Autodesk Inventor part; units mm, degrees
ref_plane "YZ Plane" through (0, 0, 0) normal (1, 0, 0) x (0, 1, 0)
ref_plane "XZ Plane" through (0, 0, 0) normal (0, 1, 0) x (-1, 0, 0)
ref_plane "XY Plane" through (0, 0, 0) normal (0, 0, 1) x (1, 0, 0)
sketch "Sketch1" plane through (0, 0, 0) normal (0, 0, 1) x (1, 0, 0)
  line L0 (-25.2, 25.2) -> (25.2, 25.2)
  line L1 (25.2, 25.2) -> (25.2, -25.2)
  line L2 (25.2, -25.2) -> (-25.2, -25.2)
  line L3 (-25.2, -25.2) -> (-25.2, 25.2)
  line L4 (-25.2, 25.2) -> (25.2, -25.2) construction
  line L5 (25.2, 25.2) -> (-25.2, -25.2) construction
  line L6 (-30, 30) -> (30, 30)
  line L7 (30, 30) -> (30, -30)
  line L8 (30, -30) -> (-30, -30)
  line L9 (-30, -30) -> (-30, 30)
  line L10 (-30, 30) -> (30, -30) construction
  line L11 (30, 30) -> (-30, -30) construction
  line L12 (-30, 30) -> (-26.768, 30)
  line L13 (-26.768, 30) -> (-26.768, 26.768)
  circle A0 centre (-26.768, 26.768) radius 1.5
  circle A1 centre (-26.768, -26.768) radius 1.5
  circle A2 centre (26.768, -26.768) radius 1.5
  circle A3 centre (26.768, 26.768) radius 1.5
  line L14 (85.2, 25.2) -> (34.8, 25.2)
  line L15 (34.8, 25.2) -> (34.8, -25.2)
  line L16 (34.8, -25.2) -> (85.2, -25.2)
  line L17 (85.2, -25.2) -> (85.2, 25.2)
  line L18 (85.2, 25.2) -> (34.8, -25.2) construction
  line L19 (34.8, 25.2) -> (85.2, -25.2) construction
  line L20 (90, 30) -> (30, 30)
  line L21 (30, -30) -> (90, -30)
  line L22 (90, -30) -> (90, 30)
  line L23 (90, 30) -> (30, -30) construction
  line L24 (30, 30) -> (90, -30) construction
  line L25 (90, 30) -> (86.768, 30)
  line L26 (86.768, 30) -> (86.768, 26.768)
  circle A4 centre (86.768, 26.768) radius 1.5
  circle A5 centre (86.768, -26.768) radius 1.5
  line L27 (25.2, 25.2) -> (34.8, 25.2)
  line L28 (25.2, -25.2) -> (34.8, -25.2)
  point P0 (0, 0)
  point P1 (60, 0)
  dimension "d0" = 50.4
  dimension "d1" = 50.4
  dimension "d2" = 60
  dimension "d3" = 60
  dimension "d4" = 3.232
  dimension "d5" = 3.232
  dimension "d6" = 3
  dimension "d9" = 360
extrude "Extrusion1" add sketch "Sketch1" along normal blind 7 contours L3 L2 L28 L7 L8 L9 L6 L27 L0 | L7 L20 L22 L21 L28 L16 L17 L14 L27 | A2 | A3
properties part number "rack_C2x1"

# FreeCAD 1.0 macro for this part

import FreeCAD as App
import Part
import Sketcher
from FreeCAD import Vector

doc = App.newDocument("Part")
body = doc.addObject("PartDesign::Body", "Body")

# Sketch on XY plane
sketch1 = doc.addObject("Sketcher::SketchObject", "Sketch")
body.addObject(sketch1)
sketch1.AttachmentSupport = (doc.XY_Plane, [""])
sketch1.MapMode = "FlatFace"
sketch1.addGeometry(Part.LineSegment(Vector(-30, -30, 0), Vector(90, -30, 0)), False)
sketch1.addGeometry(Part.LineSegment(Vector(90, -30, 0), Vector(90, 30, 0)), False)
sketch1.addGeometry(Part.LineSegment(Vector(90, 30, 0), Vector(86.8, 30, 0)), False)
sketch1.addGeometry(Part.LineSegment(Vector(86.8, 30, 0), Vector(-26.8, 30, 0)), False)
sketch1.addGeometry(Part.LineSegment(Vector(-26.8, 30, 0), Vector(-30, 30, 0)), False)
sketch1.addGeometry(Part.LineSegment(Vector(-30, 30, 0), Vector(-30, -30, 0)), False)
sketch1.addGeometry(Part.LineSegment(Vector(-25.2, -25.2, 0), Vector(-25.2, 25.2, 0)), False)
sketch1.addGeometry(Part.LineSegment(Vector(-25.2, 25.2, 0), Vector(85.2, 25.2, 0)), False)
sketch1.addGeometry(Part.LineSegment(Vector(85.2, 25.2, 0), Vector(85.2, -25.2, 0)), False)
sketch1.addGeometry(Part.LineSegment(Vector(85.2, -25.2, 0), Vector(-25.2, -25.2, 0)), False)
sketch1.addGeometry(Part.Circle(Vector(-26.8, -26.8, 0), Vector(0, 0, 1), 1.5), False)
sketch1.addGeometry(Part.Circle(Vector(-26.8, 26.8, 0), Vector(0, 0, 1), 1.5), False)
sketch1.addGeometry(Part.Circle(Vector(86.8, 26.8, 0), Vector(0, 0, 1), 1.5), False)
sketch1.addGeometry(Part.Circle(Vector(86.8, -26.8, 0), Vector(0, 0, 1), 1.5), False)
sketch1.addConstraint(Sketcher.Constraint("Coincident", 0, 2, 1, 1))
sketch1.addConstraint(Sketcher.Constraint("Coincident", 1, 2, 2, 1))
sketch1.addConstraint(Sketcher.Constraint("Coincident", 2, 2, 3, 1))
sketch1.addConstraint(Sketcher.Constraint("Coincident", 3, 2, 4, 1))
sketch1.addConstraint(Sketcher.Constraint("Coincident", 4, 2, 5, 1))
sketch1.addConstraint(Sketcher.Constraint("Coincident", 5, 2, 0, 1))
sketch1.addConstraint(Sketcher.Constraint("Coincident", 6, 2, 7, 1))
sketch1.addConstraint(Sketcher.Constraint("Coincident", 7, 2, 8, 1))
sketch1.addConstraint(Sketcher.Constraint("Coincident", 8, 2, 9, 1))
sketch1.addConstraint(Sketcher.Constraint("Coincident", 9, 2, 6, 1))
sketch1.addConstraint(Sketcher.Constraint("Horizontal", 0))
sketch1.addConstraint(Sketcher.Constraint("Vertical", 1))
sketch1.addConstraint(Sketcher.Constraint("Horizontal", 2))
sketch1.addConstraint(Sketcher.Constraint("Horizontal", 3))
sketch1.addConstraint(Sketcher.Constraint("Horizontal", 4))
sketch1.addConstraint(Sketcher.Constraint("Vertical", 5))
sketch1.addConstraint(Sketcher.Constraint("Vertical", 6))
sketch1.addConstraint(Sketcher.Constraint("Horizontal", 7))
sketch1.addConstraint(Sketcher.Constraint("Vertical", 8))
sketch1.addConstraint(Sketcher.Constraint("Horizontal", 9))
sketch1.addConstraint(Sketcher.Constraint("Equal", 10, 11))
sketch1.addConstraint(Sketcher.Constraint("Equal", 11, 12))
sketch1.addConstraint(Sketcher.Constraint("Equal", 12, 13))
sketch1.addConstraint(Sketcher.Constraint("Symmetric", 10, 3, 11, 3, -1))
sketch1.addConstraint(Sketcher.Constraint("Symmetric", 12, 3, 13, 3, -1))
sketch1.addConstraint(Sketcher.Constraint("Horizontal", 11, 3, 12, 3))
sketch1.addConstraint(Sketcher.Constraint("Vertical", 13, 3, 2, 2))
sketch1.addConstraint(Sketcher.Constraint("Vertical", 11, 3, 3, 2))
sketch1.addConstraint(Sketcher.Constraint("Equal", 2, 4))
sketch1.addConstraint(Sketcher.Constraint("Diameter", 10, 3.0))
sketch1.addConstraint(Sketcher.Constraint("DistanceY", 1, 1, 1, 2, 60.0))
sketch1.addConstraint(Sketcher.Constraint("DistanceY", 6, 1, 6, 2, 50.4))
sketch1.addConstraint(Sketcher.Constraint("DistanceX", 0, 1, 0, 2, 120.0))
sketch1.addConstraint(Sketcher.Constraint("DistanceX", 2, 2, 2, 1, 3.232))
sketch1.addConstraint(Sketcher.Constraint("DistanceX", 7, 1, 7, 2, 110.4))
sketch1.addConstraint(Sketcher.Constraint("DistanceX", -1, 1, 0, 2, 90.0))
sketch1.addConstraint(Sketcher.Constraint("DistanceY", 0, 2, -1, 1, 30.0))
sketch1.addConstraint(Sketcher.Constraint("DistanceY", 0, 2, 13, 3, 3.232))
sketch1.addConstraint(Sketcher.Constraint("DistanceX", 6, 2, -1, 1, 25.2))
sketch1.addConstraint(Sketcher.Constraint("DistanceY", -1, 1, 6, 2, 25.2))
pad1 = doc.addObject("PartDesign::Pad", "Pad")
body.addObject(pad1)
pad1.Profile = sketch1
pad1.Length = 7

doc.recompute()
